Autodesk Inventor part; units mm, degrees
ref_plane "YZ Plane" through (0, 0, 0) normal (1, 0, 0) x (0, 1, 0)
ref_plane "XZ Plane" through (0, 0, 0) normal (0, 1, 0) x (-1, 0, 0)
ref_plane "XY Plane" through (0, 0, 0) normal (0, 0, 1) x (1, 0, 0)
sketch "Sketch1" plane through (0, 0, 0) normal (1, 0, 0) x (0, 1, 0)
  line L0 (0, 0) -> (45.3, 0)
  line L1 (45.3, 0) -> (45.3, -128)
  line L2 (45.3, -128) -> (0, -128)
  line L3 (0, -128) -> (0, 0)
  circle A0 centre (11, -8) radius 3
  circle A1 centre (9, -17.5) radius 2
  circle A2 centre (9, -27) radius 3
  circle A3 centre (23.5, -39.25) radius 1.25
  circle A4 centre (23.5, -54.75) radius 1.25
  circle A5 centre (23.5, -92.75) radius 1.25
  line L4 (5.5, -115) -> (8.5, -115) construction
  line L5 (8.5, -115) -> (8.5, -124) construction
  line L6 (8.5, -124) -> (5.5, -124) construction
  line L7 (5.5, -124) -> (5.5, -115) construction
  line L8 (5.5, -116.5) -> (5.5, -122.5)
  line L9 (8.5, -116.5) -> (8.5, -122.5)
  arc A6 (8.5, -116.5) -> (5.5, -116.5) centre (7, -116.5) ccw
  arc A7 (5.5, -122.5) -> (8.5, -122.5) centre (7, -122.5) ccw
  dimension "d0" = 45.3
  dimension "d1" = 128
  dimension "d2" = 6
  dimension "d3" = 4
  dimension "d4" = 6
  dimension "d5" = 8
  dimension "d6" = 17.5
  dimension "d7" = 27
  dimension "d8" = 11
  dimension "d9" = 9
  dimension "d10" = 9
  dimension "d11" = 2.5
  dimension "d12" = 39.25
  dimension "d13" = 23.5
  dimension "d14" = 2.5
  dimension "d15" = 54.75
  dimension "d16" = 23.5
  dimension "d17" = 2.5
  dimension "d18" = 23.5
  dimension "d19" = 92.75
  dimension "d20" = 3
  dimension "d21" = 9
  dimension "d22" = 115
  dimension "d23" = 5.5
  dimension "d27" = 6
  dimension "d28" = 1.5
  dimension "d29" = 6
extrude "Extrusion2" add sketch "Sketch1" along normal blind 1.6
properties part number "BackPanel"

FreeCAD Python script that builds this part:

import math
import FreeCAD as App
import Part
import Sketcher
from FreeCAD import Vector


def add_polygon(sketch, points):
    """Adds a closed chain of lines whose ends are joined by coincident constraints."""
    first, n = sketch.GeometryCount, len(points)
    for a, b in zip(points, points[1:] + points[:1]):
        sketch.addGeometry(Part.LineSegment(App.Vector(*a, 0), App.Vector(*b, 0)), False)
    for i in range(n):
        sketch.addConstraint(Sketcher.Constraint("Coincident", first + i, 2, first + (i + 1) % n, 1))

doc = App.newDocument("Part")
params = doc.addObject("Spreadsheet::Sheet", "Params")
for row, (alias, value) in enumerate([
    ("sketch1_diameter", "6 mm"),
    ("sketch1_diameter2", "4 mm"),
    ("sketch1_diameter3", "2.5 mm"),
    ("sketch1_radius", "1.5 mm"),
    ("sketch1_height", "128 mm"),
    ("pad1_length", "1.6 mm"),
], start=1):
    params.set(f"A{row}", alias)
    params.set(f"B{row}", "=" + value)
    params.setAlias(f"B{row}", alias)

body = doc.addObject("PartDesign::Body", "Body")

# Sketch on YZ plane
sketch1 = body.newObject("Sketcher::SketchObject", "Sketch")
sketch1.AttachmentSupport = (doc.getObject("YZ_Plane"), [""])
sketch1.MapMode = "FlatFace"
add_polygon(sketch1, [(45.3, 0), (0, 0), (0, -128), (45.3, -128)])  # lines 0-3
sketch1.addGeometry(Part.LineSegment(Vector(5.5, -122.5, 0), Vector(5.5, -116.5, 0)), False)  # 4
sketch1.addGeometry(Part.ArcOfCircle(Part.Circle(Vector(7, -116.5, 0), Vector(0, 0, 1), 1.5), math.radians(0), math.radians(180)), False)  # 5
sketch1.addGeometry(Part.LineSegment(Vector(8.5, -116.5, 0), Vector(8.5, -122.5, 0)), False)  # 6
sketch1.addGeometry(Part.ArcOfCircle(Part.Circle(Vector(7, -122.5, 0), Vector(0, 0, 1), 1.5), math.radians(180), math.radians(360)), False)  # 7
sketch1.addGeometry(Part.Circle(Vector(23.5, -92.8, 0), Vector(0, 0, 1), 1.2), False)  # 8
sketch1.addGeometry(Part.Circle(Vector(9, -27, 0), Vector(0, 0, 1), 3), False)  # 9
sketch1.addGeometry(Part.Circle(Vector(9, -17.5, 0), Vector(0, 0, 1), 2), False)  # 10
sketch1.addGeometry(Part.Circle(Vector(11, -8, 0), Vector(0, 0, 1), 3), False)  # 11
sketch1.addGeometry(Part.Circle(Vector(23.5, -54.8, 0), Vector(0, 0, 1), 1.2), False)  # 12
sketch1.addGeometry(Part.Circle(Vector(23.5, -39.2, 0), Vector(0, 0, 1), 1.2), False)  # 13
sketch1.addConstraint([
    Sketcher.Constraint("Tangent", 4, 2, 5, 2),
    Sketcher.Constraint("Tangent", 5, 1, 6, 1),
    Sketcher.Constraint("Tangent", 6, 2, 7, 2),
    Sketcher.Constraint("Tangent", 7, 1, 4, 1),
    Sketcher.Constraint("Horizontal", 0),
    Sketcher.Constraint("Vertical", 1),
    Sketcher.Constraint("Horizontal", 2),
    Sketcher.Constraint("Vertical", 3),
    Sketcher.Constraint("Vertical", 4),
    Sketcher.Constraint("Vertical", 6),
    Sketcher.Constraint("Coincident", 0, 2, -1, 1),
    Sketcher.Constraint("Equal", 9, 11),
    Sketcher.Constraint("Equal", 8, 12),
    Sketcher.Constraint("Equal", 12, 13),
    Sketcher.Constraint("Vertical", 9, 3, 10, 3),
    Sketcher.Constraint("Vertical", 8, 3, 12, 3),
    Sketcher.Constraint("Vertical", 12, 3, 13, 3),
    Sketcher.Constraint("Diameter", 9, 6.0),
    Sketcher.Constraint("Diameter", 10, 4.0),
    Sketcher.Constraint("Diameter", 8, 2.5),
    Sketcher.Constraint("Radius", 5, 1.5),
    Sketcher.Constraint("DistanceY", 1, 2, 1, 1, 128.0),
    Sketcher.Constraint("DistanceY", 4, 1, 4, 2, 6.0),
    Sketcher.Constraint("DistanceX", 0, 2, 0, 1, 45.3),
    Sketcher.Constraint("DistanceX", -1, 1, 9, 3, 9.0),
    Sketcher.Constraint("DistanceY", 9, 3, -1, 1, 27.0),
    Sketcher.Constraint("DistanceX", -1, 1, 11, 3, 11.0),
    Sketcher.Constraint("DistanceY", 11, 3, -1, 1, 8.0),
    Sketcher.Constraint("DistanceX", 5, 3, 11, 3, 4.0),
    Sketcher.Constraint("DistanceX", -1, 1, 8, 3, 23.5),
    Sketcher.Constraint("DistanceY", 10, 3, -1, 1, 17.5),
    Sketcher.Constraint("DistanceY", 1, 2, 7, 3, 5.5),
    Sketcher.Constraint("DistanceY", 8, 3, -1, 1, 92.75),
    Sketcher.Constraint("DistanceY", 12, 3, -1, 1, 54.75),
    Sketcher.Constraint("DistanceY", 13, 3, -1, 1, 39.25),
])
sketch1.setExpression("Constraints[21]", "Params.sketch1_diameter")
sketch1.setExpression("Constraints[22]", "Params.sketch1_diameter2")
sketch1.setExpression("Constraints[23]", "Params.sketch1_diameter3")
sketch1.setExpression("Constraints[24]", "Params.sketch1_radius")
sketch1.setExpression("Constraints[25]", "Params.sketch1_height")
pad1 = body.newObject("PartDesign::Pad", "Pad")
pad1.Profile = sketch1
pad1.setExpression("Length", "Params.pad1_length")

doc.recompute()
